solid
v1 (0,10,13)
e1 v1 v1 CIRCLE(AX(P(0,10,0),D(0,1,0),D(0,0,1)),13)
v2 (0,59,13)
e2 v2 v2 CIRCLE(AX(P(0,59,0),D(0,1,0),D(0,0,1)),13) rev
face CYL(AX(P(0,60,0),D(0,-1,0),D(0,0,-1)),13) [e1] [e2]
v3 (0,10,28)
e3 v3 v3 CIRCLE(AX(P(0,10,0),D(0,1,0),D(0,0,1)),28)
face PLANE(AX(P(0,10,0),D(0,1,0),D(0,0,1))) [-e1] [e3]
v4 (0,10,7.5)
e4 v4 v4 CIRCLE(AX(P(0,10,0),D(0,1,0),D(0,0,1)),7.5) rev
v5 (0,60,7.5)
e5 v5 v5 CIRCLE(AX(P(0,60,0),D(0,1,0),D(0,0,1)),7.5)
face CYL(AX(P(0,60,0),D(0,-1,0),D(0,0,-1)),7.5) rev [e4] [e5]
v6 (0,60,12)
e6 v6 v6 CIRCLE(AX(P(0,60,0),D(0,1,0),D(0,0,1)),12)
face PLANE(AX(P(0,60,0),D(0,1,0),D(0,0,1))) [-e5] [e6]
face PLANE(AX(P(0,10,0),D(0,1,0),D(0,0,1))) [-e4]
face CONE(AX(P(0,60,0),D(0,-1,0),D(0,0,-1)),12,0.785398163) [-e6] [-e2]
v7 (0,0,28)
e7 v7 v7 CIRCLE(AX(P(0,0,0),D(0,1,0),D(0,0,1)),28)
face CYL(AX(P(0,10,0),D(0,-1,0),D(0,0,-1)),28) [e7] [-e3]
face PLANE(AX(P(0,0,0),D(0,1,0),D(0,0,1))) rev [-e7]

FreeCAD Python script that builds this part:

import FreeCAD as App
import Part
import Sketcher


def edges_at(feature, points):
    """Names of the edges that pass closest to the given points."""
    edges = feature.Shape.Edges
    near = lambda p: min(range(len(edges)), key=lambda i: edges[i].distToShape(Part.Vertex(*p))[0])
    return sorted({f"Edge{near(p) + 1}" for p in points})

doc = App.newDocument("Part")
body = doc.addObject("PartDesign::Body", "Body")

# Sketch on XZ plane
sketch1 = body.newObject("Sketcher::SketchObject", "Sketch")
sketch1.AttachmentSupport = (doc.getObject("XZ_Plane"), [""])
sketch1.MapMode = "FlatFace"
sketch1.addGeometry(Part.Circle(App.Vector(0, 0, 0), App.Vector(0, 0, 1), 28), False)
sketch1.addConstraint([
    Sketcher.Constraint("Coincident", 0, 3, -1, 1),
    Sketcher.Constraint("Diameter", 0, 56.0),
])
pad1 = body.newObject("PartDesign::Pad", "Pad")
pad1.Profile = sketch1
pad1.Length = 10
pad1.Reversed = True

# Sketch on XZ plane
sketch2 = body.newObject("Sketcher::SketchObject", "Sketch001")
sketch2.AttachmentSupport = (doc.getObject("XZ_Plane"), [""])
sketch2.MapMode = "FlatFace"
sketch2.AttachmentOffset = App.Placement(App.Vector(0, 0, -10), App.Rotation())
sketch2.addGeometry([
    Part.Circle(App.Vector(0, 0, 0), App.Vector(0, 0, 1), 13),
    Part.Circle(App.Vector(0, 0, 0), App.Vector(0, 0, 1), 8),
], False)
sketch2.addConstraint([
    Sketcher.Constraint("Coincident", 0, 3, -1, 1),
    Sketcher.Constraint("Coincident", 1, 3, -1, 1),
    Sketcher.Constraint("Diameter", 0, 26.0),
    Sketcher.Constraint("Diameter", 1, 15.0),
])
pad2 = body.newObject("PartDesign::Pad", "Pad001")
pad2.Profile = sketch2
pad2.Length = 50
pad2.Reversed = True
doc.recompute()

chamfer = body.newObject("PartDesign::Chamfer", "Chamfer")
chamfer.Base = (pad2, edges_at(pad2, [(0, 60, -13)]))
chamfer.Size = 1

doc.recompute()
